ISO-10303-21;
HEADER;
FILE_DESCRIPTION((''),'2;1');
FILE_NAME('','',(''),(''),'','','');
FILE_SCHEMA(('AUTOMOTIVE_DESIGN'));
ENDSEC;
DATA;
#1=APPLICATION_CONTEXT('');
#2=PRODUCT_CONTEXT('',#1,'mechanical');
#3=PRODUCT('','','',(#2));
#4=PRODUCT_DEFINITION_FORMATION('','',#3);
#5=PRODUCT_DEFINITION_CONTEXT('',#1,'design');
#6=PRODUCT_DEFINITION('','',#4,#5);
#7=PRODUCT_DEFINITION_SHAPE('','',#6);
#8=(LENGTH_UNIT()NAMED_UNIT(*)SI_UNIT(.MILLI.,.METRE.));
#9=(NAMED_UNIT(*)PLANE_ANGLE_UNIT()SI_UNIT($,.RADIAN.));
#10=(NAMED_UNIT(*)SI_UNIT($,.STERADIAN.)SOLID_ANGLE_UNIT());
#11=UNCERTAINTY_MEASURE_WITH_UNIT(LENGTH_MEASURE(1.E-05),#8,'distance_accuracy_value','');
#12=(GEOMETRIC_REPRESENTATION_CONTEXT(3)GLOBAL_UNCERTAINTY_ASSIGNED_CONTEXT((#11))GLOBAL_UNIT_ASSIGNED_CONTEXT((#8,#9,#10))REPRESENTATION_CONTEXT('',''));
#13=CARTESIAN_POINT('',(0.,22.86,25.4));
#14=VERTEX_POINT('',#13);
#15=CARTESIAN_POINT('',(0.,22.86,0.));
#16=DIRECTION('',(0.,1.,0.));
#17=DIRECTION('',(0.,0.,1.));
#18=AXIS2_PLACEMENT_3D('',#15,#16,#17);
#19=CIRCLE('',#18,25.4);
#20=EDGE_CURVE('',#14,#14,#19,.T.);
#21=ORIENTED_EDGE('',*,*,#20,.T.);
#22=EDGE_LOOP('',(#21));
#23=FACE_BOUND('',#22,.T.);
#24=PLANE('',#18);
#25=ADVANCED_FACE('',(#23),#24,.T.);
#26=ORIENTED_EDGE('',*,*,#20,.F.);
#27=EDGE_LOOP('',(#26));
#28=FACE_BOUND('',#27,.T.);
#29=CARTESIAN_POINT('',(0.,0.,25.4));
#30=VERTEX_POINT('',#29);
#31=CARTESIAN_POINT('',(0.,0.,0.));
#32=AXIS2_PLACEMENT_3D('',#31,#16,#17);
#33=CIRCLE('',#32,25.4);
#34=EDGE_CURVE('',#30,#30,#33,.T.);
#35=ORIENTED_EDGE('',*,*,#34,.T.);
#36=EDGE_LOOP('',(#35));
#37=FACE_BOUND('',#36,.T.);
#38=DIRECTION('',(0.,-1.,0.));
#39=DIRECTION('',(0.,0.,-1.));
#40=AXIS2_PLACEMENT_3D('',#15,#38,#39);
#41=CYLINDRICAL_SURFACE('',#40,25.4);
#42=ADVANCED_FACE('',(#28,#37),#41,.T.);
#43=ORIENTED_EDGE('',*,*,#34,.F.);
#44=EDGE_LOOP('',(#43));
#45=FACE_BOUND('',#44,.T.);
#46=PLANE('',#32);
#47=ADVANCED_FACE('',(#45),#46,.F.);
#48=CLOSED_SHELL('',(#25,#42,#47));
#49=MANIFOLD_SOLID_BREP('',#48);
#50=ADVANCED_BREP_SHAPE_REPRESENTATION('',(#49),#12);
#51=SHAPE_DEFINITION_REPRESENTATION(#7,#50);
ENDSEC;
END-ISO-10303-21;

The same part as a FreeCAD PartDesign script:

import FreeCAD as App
import Part
import Sketcher

V = App.Vector
Q = App.Units.Quantity

doc = App.newDocument("Part")
params = doc.addObject("Spreadsheet::Sheet", "Params")
for row, (alias, value) in enumerate([
    ("sketch1_diameter", "2 in"),
    ("pad1_length", "0.9 in"),
], start=1):
    params.set(f"A{row}", alias)
    params.set(f"B{row}", "=" + value)
    params.setAlias(f"B{row}", alias)

body = doc.addObject("PartDesign::Body", "Body")

# Sketch on XZ plane
sketch1 = body.newObject("Sketcher::SketchObject", "Sketch")
sketch1.AttachmentSupport = (doc.getObject("XZ_Plane"), [""])
sketch1.MapMode = "FlatFace"
sketch1.addGeometry(Part.Circle(V(0, 0, 0), V(0, 0, 1), 25), False)
sketch1.addConstraint(Sketcher.Constraint("Coincident", 0, 3, -1, 1))
sketch1.addConstraint(Sketcher.Constraint("Diameter", 0, Q("2 in")))
sketch1.setExpression("Constraints[1]", "Params.sketch1_diameter")
pad1 = body.newObject("PartDesign::Pad", "Pad")
pad1.Profile = sketch1
pad1.setExpression("Length", "Params.pad1_length")
pad1.Reversed = True

doc.recompute()
